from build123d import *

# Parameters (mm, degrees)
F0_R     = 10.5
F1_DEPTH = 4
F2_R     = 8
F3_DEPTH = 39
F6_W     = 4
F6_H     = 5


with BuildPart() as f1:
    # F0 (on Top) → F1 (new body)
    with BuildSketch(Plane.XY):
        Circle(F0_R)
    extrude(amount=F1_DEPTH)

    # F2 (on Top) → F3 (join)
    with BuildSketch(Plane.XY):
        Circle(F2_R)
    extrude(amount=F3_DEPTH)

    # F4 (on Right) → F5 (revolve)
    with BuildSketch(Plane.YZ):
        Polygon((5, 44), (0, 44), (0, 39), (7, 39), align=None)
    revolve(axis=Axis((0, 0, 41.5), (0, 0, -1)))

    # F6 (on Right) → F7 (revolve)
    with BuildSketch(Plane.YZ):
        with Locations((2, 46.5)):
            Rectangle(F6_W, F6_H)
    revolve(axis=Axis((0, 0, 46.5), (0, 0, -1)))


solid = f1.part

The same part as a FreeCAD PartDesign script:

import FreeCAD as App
import Part
import Sketcher

V = App.Vector
Q = App.Units.Quantity

doc = App.newDocument("Part")
params = doc.addObject("Spreadsheet::Sheet", "Params")
for row, (alias, value) in enumerate([
    ("sketch1_diameter", "21 mm"),
    ("pad1_length", "4 mm"),
    ("sketch2_diameter", "16 mm"),
    ("pad2_length", "39 mm"),
    ("sketch3_width", "5 mm"),
    ("sketch3_width2", "7 mm"),
    ("revolution_angle", "360 deg"),
    ("sketch4_width", "4 mm"),
    ("sketch4_height", "5 mm"),
    ("revolution2_angle", "360 deg"),
], start=1):
    params.set(f"A{row}", alias)
    params.set(f"B{row}", "=" + value)
    params.setAlias(f"B{row}", alias)

body = doc.addObject("PartDesign::Body", "Body")

# Sketch on XY plane
sketch1 = body.newObject("Sketcher::SketchObject", "Sketch")
sketch1.AttachmentSupport = (doc.getObject("XY_Plane"), [""])
sketch1.MapMode = "FlatFace"
sketch1.addGeometry(Part.Circle(V(0, 0, 0), V(0, 0, 1), 10), False)
sketch1.addConstraint([
    Sketcher.Constraint("Coincident", 0, 3, -1, 1),
    Sketcher.Constraint("Diameter", 0, Q("21 mm")),
])
sketch1.setExpression("Constraints[1]", "Params.sketch1_diameter")
pad1 = body.newObject("PartDesign::Pad", "Pad")
pad1.Profile = sketch1
pad1.setExpression("Length", "Params.pad1_length")

# Sketch on XY plane
sketch2 = body.newObject("Sketcher::SketchObject", "Sketch001")
sketch2.AttachmentSupport = (doc.getObject("XY_Plane"), [""])
sketch2.MapMode = "FlatFace"
sketch2.addGeometry(Part.Circle(V(0, 0, 0), V(0, 0, 1), 8), False)
sketch2.addConstraint([
    Sketcher.Constraint("Coincident", 0, 3, -1, 1),
    Sketcher.Constraint("Diameter", 0, Q("16 mm")),
])
sketch2.setExpression("Constraints[1]", "Params.sketch2_diameter")
pad2 = body.newObject("PartDesign::Pad", "Pad001")
pad2.Profile = sketch2
pad2.setExpression("Length", "Params.pad2_length")

# Sketch on YZ plane
sketch3 = body.newObject("Sketcher::SketchObject", "Sketch002")
sketch3.AttachmentSupport = (doc.getObject("YZ_Plane"), [""])
sketch3.MapMode = "FlatFace"
sketch3.addGeometry([
    Part.LineSegment(V(5, 44, 0), V(0, 44, 0)),
    Part.LineSegment(V(0, 44, 0), V(0, 39, 0)),
    Part.LineSegment(V(0, 39, 0), V(7, 39, 0)),
    Part.LineSegment(V(7, 39, 0), V(5, 44, 0)),
], False)
sketch3.addConstraint([
    Sketcher.Constraint("Coincident", 0, 2, 1, 1),
    Sketcher.Constraint("Coincident", 1, 2, 2, 1),
    Sketcher.Constraint("Coincident", 2, 2, 3, 1),
    Sketcher.Constraint("Coincident", 3, 2, 0, 1),
    Sketcher.Constraint("Horizontal", 0),
    Sketcher.Constraint("Vertical", 1),
    Sketcher.Constraint("Horizontal", 2),
    Sketcher.Constraint("PointOnObject", 0, 2, -2),
    Sketcher.Constraint("Equal", 0, 1),
    Sketcher.Constraint("DistanceX", 0, 2, 0, 1, Q("5 mm")),
    Sketcher.Constraint("DistanceX", 2, 1, 2, 2, Q("7 mm")),
    Sketcher.Constraint("DistanceY", -1, 1, 0, 2, Q("44 mm")),
])
sketch3.setExpression("Constraints[9]", "Params.sketch3_width")
sketch3.setExpression("Constraints[10]", "Params.sketch3_width2")
revolution = body.newObject("PartDesign::Revolution", "Revolution")
revolution.Profile = sketch3
revolution.ReferenceAxis = (sketch3, ["V_Axis"])
revolution.setExpression("Angle", "Params.revolution_angle")

# Sketch on YZ plane
sketch4 = body.newObject("Sketcher::SketchObject", "Sketch003")
sketch4.AttachmentSupport = (doc.getObject("YZ_Plane"), [""])
sketch4.MapMode = "FlatFace"
sketch4.addGeometry([
    Part.LineSegment(V(0, 49, 0), V(0, 44, 0)),
    Part.LineSegment(V(0, 44, 0), V(4, 44, 0)),
    Part.LineSegment(V(4, 44, 0), V(4, 49, 0)),
    Part.LineSegment(V(4, 49, 0), V(0, 49, 0)),
], False)
sketch4.addConstraint([
    Sketcher.Constraint("Coincident", 0, 2, 1, 1),
    Sketcher.Constraint("Coincident", 1, 2, 2, 1),
    Sketcher.Constraint("Coincident", 2, 2, 3, 1),
    Sketcher.Constraint("Coincident", 3, 2, 0, 1),
    Sketcher.Constraint("Vertical", 0),
    Sketcher.Constraint("Horizontal", 1),
    Sketcher.Constraint("Vertical", 2),
    Sketcher.Constraint("Horizontal", 3),
    Sketcher.Constraint("PointOnObject", 0, 2, -2),
    Sketcher.Constraint("DistanceX", 1, 1, 1, 2, Q("4 mm")),
    Sketcher.Constraint("DistanceY", 0, 2, 0, 1, Q("5 mm")),
    Sketcher.Constraint("DistanceY", -1, 1, 0, 2, Q("44 mm")),
])
sketch4.setExpression("Constraints[9]", "Params.sketch4_width")
sketch4.setExpression("Constraints[10]", "Params.sketch4_height")
revolution2 = body.newObject("PartDesign::Revolution", "Revolution001")
revolution2.Profile = sketch4
revolution2.ReferenceAxis = (sketch4, ["V_Axis"])
revolution2.setExpression("Angle", "Params.revolution2_angle")

doc.recompute()
